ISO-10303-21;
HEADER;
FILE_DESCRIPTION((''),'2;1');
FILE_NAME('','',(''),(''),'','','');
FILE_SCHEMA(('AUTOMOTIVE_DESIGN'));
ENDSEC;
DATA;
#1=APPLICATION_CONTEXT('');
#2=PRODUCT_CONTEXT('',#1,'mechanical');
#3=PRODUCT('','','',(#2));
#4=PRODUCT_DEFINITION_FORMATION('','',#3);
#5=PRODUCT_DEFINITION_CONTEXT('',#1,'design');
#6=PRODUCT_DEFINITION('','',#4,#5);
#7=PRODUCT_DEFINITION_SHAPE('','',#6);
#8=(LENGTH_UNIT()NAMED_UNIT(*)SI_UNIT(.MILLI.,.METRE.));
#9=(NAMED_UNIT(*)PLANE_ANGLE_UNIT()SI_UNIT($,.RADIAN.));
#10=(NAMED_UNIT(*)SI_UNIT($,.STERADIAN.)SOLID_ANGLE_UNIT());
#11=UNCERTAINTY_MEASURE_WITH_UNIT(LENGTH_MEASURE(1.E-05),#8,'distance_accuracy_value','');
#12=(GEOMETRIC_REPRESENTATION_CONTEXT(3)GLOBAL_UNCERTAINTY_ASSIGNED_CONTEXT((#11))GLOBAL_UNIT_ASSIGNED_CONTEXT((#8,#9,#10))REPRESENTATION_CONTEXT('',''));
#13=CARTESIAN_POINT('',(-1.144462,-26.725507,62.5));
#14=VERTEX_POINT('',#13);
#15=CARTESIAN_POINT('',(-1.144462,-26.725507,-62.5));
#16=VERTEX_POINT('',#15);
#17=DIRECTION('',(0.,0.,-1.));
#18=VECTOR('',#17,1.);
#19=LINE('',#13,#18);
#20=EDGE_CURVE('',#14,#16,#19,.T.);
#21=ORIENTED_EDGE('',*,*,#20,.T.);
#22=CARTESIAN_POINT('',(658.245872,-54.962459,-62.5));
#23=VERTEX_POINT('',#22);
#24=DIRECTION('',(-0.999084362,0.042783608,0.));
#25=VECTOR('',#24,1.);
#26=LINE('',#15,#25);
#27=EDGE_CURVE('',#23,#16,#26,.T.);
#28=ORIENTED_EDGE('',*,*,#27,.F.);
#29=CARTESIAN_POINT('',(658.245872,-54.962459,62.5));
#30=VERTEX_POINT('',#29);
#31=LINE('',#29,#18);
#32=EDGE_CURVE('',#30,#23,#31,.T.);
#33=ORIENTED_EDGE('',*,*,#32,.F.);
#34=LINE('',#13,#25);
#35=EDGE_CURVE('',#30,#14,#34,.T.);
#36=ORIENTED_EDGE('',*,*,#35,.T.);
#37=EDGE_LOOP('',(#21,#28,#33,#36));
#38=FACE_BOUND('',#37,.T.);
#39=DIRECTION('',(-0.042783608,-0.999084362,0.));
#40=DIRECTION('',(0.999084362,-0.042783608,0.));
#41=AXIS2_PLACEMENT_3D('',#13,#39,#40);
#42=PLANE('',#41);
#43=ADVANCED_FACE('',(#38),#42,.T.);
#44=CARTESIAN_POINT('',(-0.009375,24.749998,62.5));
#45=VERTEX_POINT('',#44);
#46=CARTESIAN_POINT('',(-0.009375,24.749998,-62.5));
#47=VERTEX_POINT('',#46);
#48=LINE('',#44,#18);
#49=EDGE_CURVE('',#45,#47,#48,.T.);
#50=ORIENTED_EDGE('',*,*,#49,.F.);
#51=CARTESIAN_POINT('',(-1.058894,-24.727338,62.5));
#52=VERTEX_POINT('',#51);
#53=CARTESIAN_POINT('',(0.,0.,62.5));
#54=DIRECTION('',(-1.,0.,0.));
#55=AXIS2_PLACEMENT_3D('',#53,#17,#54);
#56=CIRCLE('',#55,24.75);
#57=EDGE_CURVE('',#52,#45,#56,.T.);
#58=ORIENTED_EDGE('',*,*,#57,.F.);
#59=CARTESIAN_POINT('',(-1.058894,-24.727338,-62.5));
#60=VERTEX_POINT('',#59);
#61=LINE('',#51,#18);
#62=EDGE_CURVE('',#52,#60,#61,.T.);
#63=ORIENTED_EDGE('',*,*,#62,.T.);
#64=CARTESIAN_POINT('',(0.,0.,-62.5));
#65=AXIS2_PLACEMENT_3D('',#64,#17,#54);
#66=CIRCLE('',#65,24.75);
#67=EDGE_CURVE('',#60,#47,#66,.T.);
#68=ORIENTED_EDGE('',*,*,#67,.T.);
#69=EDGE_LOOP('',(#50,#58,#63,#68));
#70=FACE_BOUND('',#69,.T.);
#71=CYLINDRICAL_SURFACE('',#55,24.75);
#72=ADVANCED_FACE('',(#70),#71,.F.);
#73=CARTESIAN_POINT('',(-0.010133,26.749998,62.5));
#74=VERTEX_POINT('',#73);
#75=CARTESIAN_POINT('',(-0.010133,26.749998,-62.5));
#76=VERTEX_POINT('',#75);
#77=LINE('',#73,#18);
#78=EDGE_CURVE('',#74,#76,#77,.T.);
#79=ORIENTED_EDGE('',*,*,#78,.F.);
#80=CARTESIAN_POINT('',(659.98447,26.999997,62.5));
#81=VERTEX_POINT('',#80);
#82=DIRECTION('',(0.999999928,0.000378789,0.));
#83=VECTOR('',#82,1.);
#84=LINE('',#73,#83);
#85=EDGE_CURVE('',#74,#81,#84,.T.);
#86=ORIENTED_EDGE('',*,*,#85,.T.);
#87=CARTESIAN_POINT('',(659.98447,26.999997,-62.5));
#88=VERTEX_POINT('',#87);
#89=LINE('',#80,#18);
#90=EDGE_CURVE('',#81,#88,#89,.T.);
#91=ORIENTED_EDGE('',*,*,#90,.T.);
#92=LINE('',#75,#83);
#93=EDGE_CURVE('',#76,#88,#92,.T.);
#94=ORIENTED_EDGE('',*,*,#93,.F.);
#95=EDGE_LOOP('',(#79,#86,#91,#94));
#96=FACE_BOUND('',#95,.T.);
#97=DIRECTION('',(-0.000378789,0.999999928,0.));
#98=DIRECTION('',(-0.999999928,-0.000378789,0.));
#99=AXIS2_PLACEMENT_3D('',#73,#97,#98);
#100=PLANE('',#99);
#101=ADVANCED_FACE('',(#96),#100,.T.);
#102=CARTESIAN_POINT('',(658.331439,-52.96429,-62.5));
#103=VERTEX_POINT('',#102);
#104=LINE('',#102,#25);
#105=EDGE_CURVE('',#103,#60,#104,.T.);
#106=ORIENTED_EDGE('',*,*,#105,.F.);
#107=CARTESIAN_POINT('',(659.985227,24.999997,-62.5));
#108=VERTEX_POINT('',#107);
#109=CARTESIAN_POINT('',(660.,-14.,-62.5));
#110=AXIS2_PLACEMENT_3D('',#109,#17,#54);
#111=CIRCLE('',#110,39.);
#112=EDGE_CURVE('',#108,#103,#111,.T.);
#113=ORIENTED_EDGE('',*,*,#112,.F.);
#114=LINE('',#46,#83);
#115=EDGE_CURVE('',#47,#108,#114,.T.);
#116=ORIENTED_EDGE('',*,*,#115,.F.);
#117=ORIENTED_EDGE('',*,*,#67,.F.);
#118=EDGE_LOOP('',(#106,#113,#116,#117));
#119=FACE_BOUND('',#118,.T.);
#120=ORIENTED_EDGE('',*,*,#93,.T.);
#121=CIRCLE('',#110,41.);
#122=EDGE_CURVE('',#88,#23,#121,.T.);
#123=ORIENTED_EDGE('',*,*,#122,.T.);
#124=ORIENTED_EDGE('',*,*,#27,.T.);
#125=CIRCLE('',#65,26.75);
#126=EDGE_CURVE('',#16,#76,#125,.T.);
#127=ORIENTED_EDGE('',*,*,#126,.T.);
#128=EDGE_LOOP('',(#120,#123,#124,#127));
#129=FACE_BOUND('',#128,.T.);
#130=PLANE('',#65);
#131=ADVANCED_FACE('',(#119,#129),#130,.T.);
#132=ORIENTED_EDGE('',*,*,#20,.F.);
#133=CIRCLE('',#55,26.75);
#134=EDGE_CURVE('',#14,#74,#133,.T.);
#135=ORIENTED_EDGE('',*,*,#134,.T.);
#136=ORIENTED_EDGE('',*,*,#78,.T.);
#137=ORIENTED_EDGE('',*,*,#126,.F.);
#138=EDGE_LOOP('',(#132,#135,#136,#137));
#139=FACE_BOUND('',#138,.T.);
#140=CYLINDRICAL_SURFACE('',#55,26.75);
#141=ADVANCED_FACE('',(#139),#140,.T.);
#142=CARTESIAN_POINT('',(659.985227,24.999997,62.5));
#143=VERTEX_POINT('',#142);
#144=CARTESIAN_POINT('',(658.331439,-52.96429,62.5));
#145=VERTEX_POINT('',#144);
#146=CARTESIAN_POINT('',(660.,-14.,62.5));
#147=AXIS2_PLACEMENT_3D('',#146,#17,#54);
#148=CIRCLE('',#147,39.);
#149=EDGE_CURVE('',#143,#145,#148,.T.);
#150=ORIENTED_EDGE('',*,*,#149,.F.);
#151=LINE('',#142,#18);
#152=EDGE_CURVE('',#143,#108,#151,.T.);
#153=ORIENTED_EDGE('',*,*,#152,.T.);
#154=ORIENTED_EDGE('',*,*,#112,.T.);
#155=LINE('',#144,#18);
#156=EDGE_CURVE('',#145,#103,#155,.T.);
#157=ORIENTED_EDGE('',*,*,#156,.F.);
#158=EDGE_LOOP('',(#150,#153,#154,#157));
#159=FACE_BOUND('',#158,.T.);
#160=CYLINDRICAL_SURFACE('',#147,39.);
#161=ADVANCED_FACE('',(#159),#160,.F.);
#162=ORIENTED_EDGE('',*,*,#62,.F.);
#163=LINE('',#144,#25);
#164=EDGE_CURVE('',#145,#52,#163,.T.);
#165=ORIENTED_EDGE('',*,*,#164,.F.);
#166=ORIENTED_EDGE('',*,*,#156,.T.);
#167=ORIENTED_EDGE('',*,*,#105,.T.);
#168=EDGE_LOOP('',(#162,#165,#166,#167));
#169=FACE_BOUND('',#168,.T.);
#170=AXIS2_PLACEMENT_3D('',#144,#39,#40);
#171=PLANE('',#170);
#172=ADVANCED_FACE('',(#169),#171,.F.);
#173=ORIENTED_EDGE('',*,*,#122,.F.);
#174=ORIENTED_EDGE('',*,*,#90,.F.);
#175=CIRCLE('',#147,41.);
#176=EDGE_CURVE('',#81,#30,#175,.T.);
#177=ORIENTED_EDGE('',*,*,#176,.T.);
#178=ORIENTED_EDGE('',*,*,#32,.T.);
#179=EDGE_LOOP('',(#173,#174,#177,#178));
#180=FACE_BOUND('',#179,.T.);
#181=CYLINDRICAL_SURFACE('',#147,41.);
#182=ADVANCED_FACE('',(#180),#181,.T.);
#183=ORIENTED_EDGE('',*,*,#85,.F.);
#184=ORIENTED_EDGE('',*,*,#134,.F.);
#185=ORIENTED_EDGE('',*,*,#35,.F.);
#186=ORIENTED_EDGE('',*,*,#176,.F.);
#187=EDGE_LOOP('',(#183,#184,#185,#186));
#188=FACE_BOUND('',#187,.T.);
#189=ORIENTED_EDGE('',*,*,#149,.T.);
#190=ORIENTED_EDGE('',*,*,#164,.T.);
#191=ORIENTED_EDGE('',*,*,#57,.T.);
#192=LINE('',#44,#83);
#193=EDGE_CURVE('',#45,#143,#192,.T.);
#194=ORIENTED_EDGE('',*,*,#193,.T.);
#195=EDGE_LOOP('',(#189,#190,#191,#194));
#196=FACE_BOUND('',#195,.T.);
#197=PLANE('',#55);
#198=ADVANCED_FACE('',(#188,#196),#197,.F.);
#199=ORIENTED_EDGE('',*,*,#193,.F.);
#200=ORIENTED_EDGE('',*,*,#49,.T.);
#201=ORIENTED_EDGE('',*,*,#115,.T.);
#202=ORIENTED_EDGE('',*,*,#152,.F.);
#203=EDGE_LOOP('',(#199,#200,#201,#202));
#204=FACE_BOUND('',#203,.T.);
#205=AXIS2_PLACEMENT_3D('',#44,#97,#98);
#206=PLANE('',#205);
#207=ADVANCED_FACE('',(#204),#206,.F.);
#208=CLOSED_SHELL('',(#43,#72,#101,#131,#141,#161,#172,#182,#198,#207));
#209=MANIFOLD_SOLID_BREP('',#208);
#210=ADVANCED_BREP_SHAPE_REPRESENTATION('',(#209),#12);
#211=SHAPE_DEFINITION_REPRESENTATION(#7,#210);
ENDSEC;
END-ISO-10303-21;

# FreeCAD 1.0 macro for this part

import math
import FreeCAD as App
import Part
import Sketcher
from FreeCAD import Vector

doc = App.newDocument("Part")
body = doc.addObject("PartDesign::Body", "Body")

sketch1 = body.newObject("Sketcher::SketchObject", "Sketch")
sketch1.AttachmentSupport = (doc.getObject("XY_Plane"), [""])
sketch1.MapMode = "FlatFace"
sketch1.addGeometry([
    Part.LineSegment(Vector(-1, -27, 0), Vector(658, -55, 0)),
    Part.ArcOfCircle(Part.Circle(Vector(660, -14, 0), Vector(0, 0, 1), 41), math.radians(-92), math.radians(90)),
    Part.LineSegment(Vector(660, 27, 0), Vector(0, 27, 0)),
    Part.ArcOfCircle(Part.Circle(Vector(0, 0, 0), Vector(0, 0, 1), 27), math.radians(90), math.radians(268)),
    Part.LineSegment(Vector(658, -53, 0), Vector(-1, -25, 0)),
    Part.ArcOfCircle(Part.Circle(Vector(0, 0, 0), Vector(0, 0, 1), 25), math.radians(90), math.radians(268)),
    Part.LineSegment(Vector(0, 25, 0), Vector(660, 25, 0)),
    Part.ArcOfCircle(Part.Circle(Vector(660, -14, 0), Vector(0, 0, 1), 39), math.radians(-92), math.radians(90)),
], False)
sketch1.addConstraint([
    Sketcher.Constraint("Tangent", 0, 2, 1, 1),
    Sketcher.Constraint("Tangent", 1, 2, 2, 1),
    Sketcher.Constraint("Tangent", 2, 2, 3, 1),
    Sketcher.Constraint("Tangent", 3, 2, 0, 1),
    Sketcher.Constraint("Tangent", 4, 2, 5, 2),
    Sketcher.Constraint("Tangent", 5, 1, 6, 1),
    Sketcher.Constraint("Tangent", 6, 2, 7, 2),
    Sketcher.Constraint("Tangent", 7, 1, 4, 1),
    Sketcher.Constraint("Coincident", 3, 3, -1, 1),
    Sketcher.Constraint("Coincident", 5, 3, -1, 1),
    Sketcher.Constraint("Coincident", 7, 3, 1, 3),
    Sketcher.Constraint("Parallel", 0, 4),
    Sketcher.Constraint("Radius", 1, 41.0),
    Sketcher.Constraint("Radius", 7, 39.0),
    Sketcher.Constraint("Radius", 3, 26.75),
    Sketcher.Constraint("DistanceX", -1, 1, 1, 3, 660.0),
    Sketcher.Constraint("DistanceY", 1, 3, -1, 1, 14.0),
])
pad1 = body.newObject("PartDesign::Pad", "Pad")
pad1.Profile = sketch1
pad1.Length = 125
pad1.Midplane = True

doc.recompute()
